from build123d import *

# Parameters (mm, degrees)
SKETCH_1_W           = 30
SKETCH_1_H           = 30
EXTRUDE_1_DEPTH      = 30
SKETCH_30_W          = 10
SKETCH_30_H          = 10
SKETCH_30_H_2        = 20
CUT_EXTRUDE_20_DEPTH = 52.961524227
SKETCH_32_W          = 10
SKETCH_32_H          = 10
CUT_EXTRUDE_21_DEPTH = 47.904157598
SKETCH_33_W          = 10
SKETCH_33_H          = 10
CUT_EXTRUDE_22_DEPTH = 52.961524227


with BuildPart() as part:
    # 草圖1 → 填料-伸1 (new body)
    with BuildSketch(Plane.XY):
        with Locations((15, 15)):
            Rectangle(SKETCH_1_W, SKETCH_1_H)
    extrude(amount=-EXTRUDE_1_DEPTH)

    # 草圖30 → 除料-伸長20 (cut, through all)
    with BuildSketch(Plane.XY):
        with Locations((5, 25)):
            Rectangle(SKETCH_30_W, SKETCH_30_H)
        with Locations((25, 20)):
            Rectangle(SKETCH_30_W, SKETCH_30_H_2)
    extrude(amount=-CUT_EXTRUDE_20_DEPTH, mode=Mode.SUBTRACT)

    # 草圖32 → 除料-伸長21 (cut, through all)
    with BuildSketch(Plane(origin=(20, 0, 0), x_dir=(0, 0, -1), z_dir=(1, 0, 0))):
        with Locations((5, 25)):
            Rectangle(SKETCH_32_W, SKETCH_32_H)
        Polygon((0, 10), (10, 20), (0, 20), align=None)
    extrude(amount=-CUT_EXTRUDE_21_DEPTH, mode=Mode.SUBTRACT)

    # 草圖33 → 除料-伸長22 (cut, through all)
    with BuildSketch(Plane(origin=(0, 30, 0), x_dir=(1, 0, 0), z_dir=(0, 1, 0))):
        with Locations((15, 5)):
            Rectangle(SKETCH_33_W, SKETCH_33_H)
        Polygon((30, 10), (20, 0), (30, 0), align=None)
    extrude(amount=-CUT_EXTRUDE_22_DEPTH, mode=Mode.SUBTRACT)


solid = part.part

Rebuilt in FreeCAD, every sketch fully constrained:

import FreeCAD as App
import Part
import Sketcher
from FreeCAD import Vector
Q = App.Units.Quantity

doc = App.newDocument("Part")
body = doc.addObject("PartDesign::Body", "Body")

sketch1 = doc.addObject("Sketcher::SketchObject", "Sketch")
body.addObject(sketch1)
sketch1.AttachmentSupport = (doc.XY_Plane, [""])
sketch1.MapMode = "FlatFace"
sketch1.addGeometry(Part.LineSegment(Vector(0, 30, 0), Vector(0, 0, 0)), False)
sketch1.addGeometry(Part.LineSegment(Vector(0, 0, 0), Vector(30, 0, 0)), False)
sketch1.addGeometry(Part.LineSegment(Vector(30, 0, 0), Vector(30, 30, 0)), False)
sketch1.addGeometry(Part.LineSegment(Vector(30, 30, 0), Vector(0, 30, 0)), False)
sketch1.addConstraint(Sketcher.Constraint("Coincident", 0, 2, 1, 1))
sketch1.addConstraint(Sketcher.Constraint("Coincident", 1, 2, 2, 1))
sketch1.addConstraint(Sketcher.Constraint("Coincident", 2, 2, 3, 1))
sketch1.addConstraint(Sketcher.Constraint("Coincident", 3, 2, 0, 1))
sketch1.addConstraint(Sketcher.Constraint("Vertical", 0))
sketch1.addConstraint(Sketcher.Constraint("Horizontal", 1))
sketch1.addConstraint(Sketcher.Constraint("Vertical", 2))
sketch1.addConstraint(Sketcher.Constraint("Horizontal", 3))
sketch1.addConstraint(Sketcher.Constraint("Coincident", 0, 2, -1, 1))
sketch1.addConstraint(Sketcher.Constraint("Equal", 3, 0))
sketch1.addConstraint(Sketcher.Constraint("DistanceX", 1, 1, 1, 2, Q("30 mm")))
pad1 = doc.addObject("PartDesign::Pad", "Pad")
body.addObject(pad1)
pad1.Profile = sketch1
pad1.Length = 30
pad1.Reversed = True

sketch2 = doc.addObject("Sketcher::SketchObject", "Sketch001")
body.addObject(sketch2)
sketch2.AttachmentSupport = (doc.XY_Plane, [""])
sketch2.MapMode = "FlatFace"
sketch2.addGeometry(Part.LineSegment(Vector(0, 30, 0), Vector(0, 20, 0)), False)
sketch2.addGeometry(Part.LineSegment(Vector(0, 20, 0), Vector(10, 20, 0)), False)
sketch2.addGeometry(Part.LineSegment(Vector(10, 20, 0), Vector(10, 30, 0)), False)
sketch2.addGeometry(Part.LineSegment(Vector(10, 30, 0), Vector(0, 30, 0)), False)
sketch2.addGeometry(Part.LineSegment(Vector(20, 30, 0), Vector(20, 10, 0)), False)
sketch2.addGeometry(Part.LineSegment(Vector(20, 10, 0), Vector(30, 10, 0)), False)
sketch2.addGeometry(Part.LineSegment(Vector(30, 10, 0), Vector(30, 30, 0)), False)
sketch2.addGeometry(Part.LineSegment(Vector(30, 30, 0), Vector(20, 30, 0)), False)
sketch2.addConstraint(Sketcher.Constraint("Coincident", 0, 2, 1, 1))
sketch2.addConstraint(Sketcher.Constraint("Coincident", 1, 2, 2, 1))
sketch2.addConstraint(Sketcher.Constraint("Coincident", 2, 2, 3, 1))
sketch2.addConstraint(Sketcher.Constraint("Coincident", 3, 2, 0, 1))
sketch2.addConstraint(Sketcher.Constraint("Coincident", 4, 2, 5, 1))
sketch2.addConstraint(Sketcher.Constraint("Coincident", 5, 2, 6, 1))
sketch2.addConstraint(Sketcher.Constraint("Coincident", 6, 2, 7, 1))
sketch2.addConstraint(Sketcher.Constraint("Coincident", 7, 2, 4, 1))
sketch2.addConstraint(Sketcher.Constraint("Vertical", 0))
sketch2.addConstraint(Sketcher.Constraint("Horizontal", 1))
sketch2.addConstraint(Sketcher.Constraint("Vertical", 2))
sketch2.addConstraint(Sketcher.Constraint("Horizontal", 3))
sketch2.addConstraint(Sketcher.Constraint("Vertical", 4))
sketch2.addConstraint(Sketcher.Constraint("Horizontal", 5))
sketch2.addConstraint(Sketcher.Constraint("Vertical", 6))
sketch2.addConstraint(Sketcher.Constraint("Horizontal", 7))
sketch2.addConstraint(Sketcher.Constraint("PointOnObject", 0, 2, -2))
sketch2.addConstraint(Sketcher.Constraint("Horizontal", 3, 2, 6, 2))
sketch2.addConstraint(Sketcher.Constraint("Equal", 3, 5))
sketch2.addConstraint(Sketcher.Constraint("Equal", 7, 0))
sketch2.addConstraint(Sketcher.Constraint("DistanceX", 1, 1, 1, 2, Q("10 mm")))
sketch2.addConstraint(Sketcher.Constraint("DistanceY", 4, 2, 4, 1, Q("20 mm")))
sketch2.addConstraint(Sketcher.Constraint("DistanceY", -1, 1, 0, 2, Q("20 mm")))
sketch2.addConstraint(Sketcher.Constraint("DistanceX", -1, 1, 4, 2, Q("20 mm")))
pocket1 = doc.addObject("PartDesign::Pocket", "Pocket")
body.addObject(pocket1)
pocket1.Profile = sketch2
pocket1.Type = "ThroughAll"

sketch3 = doc.addObject("Sketcher::SketchObject", "Sketch002")
body.addObject(sketch3)
sketch3.AttachmentSupport = (doc.YZ_Plane, [""])
sketch3.MapMode = "FlatFace"
sketch3.AttachmentOffset = App.Placement(Vector(0, 0, 20), App.Rotation())
sketch3.addGeometry(Part.LineSegment(Vector(30, 0, 0), Vector(10, 0, 0)), False)
sketch3.addGeometry(Part.LineSegment(Vector(10, 0, 0), Vector(20, -10, 0)), False)
sketch3.addGeometry(Part.LineSegment(Vector(20, -10, 0), Vector(30, -10, 0)), False)
sketch3.addGeometry(Part.LineSegment(Vector(30, -10, 0), Vector(30, 0, 0)), False)
sketch3.addConstraint(Sketcher.Constraint("Coincident", 0, 2, 1, 1))
sketch3.addConstraint(Sketcher.Constraint("Coincident", 1, 2, 2, 1))
sketch3.addConstraint(Sketcher.Constraint("Coincident", 2, 2, 3, 1))
sketch3.addConstraint(Sketcher.Constraint("Coincident", 3, 2, 0, 1))
sketch3.addConstraint(Sketcher.Constraint("Horizontal", 0))
sketch3.addConstraint(Sketcher.Constraint("Horizontal", 2))
sketch3.addConstraint(Sketcher.Constraint("Vertical", 3))
sketch3.addConstraint(Sketcher.Constraint("PointOnObject", 0, 2, -1))
sketch3.addConstraint(Sketcher.Constraint("Equal", 2, 3))
sketch3.addConstraint(Sketcher.Constraint("DistanceX", 0, 2, 0, 1, Q("20 mm")))
sketch3.addConstraint(Sketcher.Constraint("DistanceX", 2, 1, 2, 2, Q("10 mm")))
sketch3.addConstraint(Sketcher.Constraint("DistanceX", -1, 1, 0, 2, Q("10 mm")))
pocket2 = doc.addObject("PartDesign::Pocket", "Pocket001")
body.addObject(pocket2)
pocket2.Profile = sketch3
pocket2.Type = "ThroughAll"

sketch4 = doc.addObject("Sketcher::SketchObject", "Sketch003")
body.addObject(sketch4)
sketch4.AttachmentSupport = (doc.XZ_Plane, [""])
sketch4.MapMode = "FlatFace"
sketch4.AttachmentOffset = App.Placement(Vector(0, 0, -30), App.Rotation())
sketch4.addGeometry(Part.LineSegment(Vector(10, -10, 0), Vector(10, 0, 0)), False)
sketch4.addGeometry(Part.LineSegment(Vector(10, 0, 0), Vector(20, 0, 0)), False)
sketch4.addGeometry(Part.LineSegment(Vector(20, 0, 0), Vector(20, -10, 0)), False)
sketch4.addGeometry(Part.LineSegment(Vector(20, -10, 0), Vector(10, -10, 0)), False)
sketch4.addGeometry(Part.LineSegment(Vector(30, -10, 0), Vector(20, 0, 0)), False)
sketch4.addGeometry(Part.LineSegment(Vector(20, 0, 0), Vector(30, 0, 0)), False)
sketch4.addGeometry(Part.LineSegment(Vector(30, 0, 0), Vector(30, -10, 0)), False)
sketch4.addConstraint(Sketcher.Constraint("Coincident", 0, 2, 1, 1))
sketch4.addConstraint(Sketcher.Constraint("Coincident", 1, 2, 2, 1))
sketch4.addConstraint(Sketcher.Constraint("Coincident", 2, 2, 3, 1))
sketch4.addConstraint(Sketcher.Constraint("Coincident", 3, 2, 0, 1))
sketch4.addConstraint(Sketcher.Constraint("Coincident", 4, 2, 5, 1))
sketch4.addConstraint(Sketcher.Constraint("Coincident", 5, 2, 6, 1))
sketch4.addConstraint(Sketcher.Constraint("Coincident", 6, 2, 4, 1))
sketch4.addConstraint(Sketcher.Constraint("Vertical", 0))
sketch4.addConstraint(Sketcher.Constraint("Horizontal", 1))
sketch4.addConstraint(Sketcher.Constraint("Vertical", 2))
sketch4.addConstraint(Sketcher.Constraint("Horizontal", 3))
sketch4.addConstraint(Sketcher.Constraint("Horizontal", 5))
sketch4.addConstraint(Sketcher.Constraint("Vertical", 6))
sketch4.addConstraint(Sketcher.Constraint("Coincident", 4, 2, 1, 2))
sketch4.addConstraint(Sketcher.Constraint("PointOnObject", 0, 2, -1))
sketch4.addConstraint(Sketcher.Constraint("Horizontal", 3, 2, 6, 2))
sketch4.addConstraint(Sketcher.Constraint("Equal", 3, 5))
sketch4.addConstraint(Sketcher.Constraint("Equal", 5, 0))
sketch4.addConstraint(Sketcher.Constraint("DistanceX", 1, 1, 1, 2, Q("10 mm")))
sketch4.addConstraint(Sketcher.Constraint("DistanceX", -1, 1, 0, 2, Q("10 mm")))
pocket3 = doc.addObject("PartDesign::Pocket", "Pocket002")
body.addObject(pocket3)
pocket3.Profile = sketch4
pocket3.Type = "ThroughAll"
pocket3.Reversed = True

doc.recompute()
